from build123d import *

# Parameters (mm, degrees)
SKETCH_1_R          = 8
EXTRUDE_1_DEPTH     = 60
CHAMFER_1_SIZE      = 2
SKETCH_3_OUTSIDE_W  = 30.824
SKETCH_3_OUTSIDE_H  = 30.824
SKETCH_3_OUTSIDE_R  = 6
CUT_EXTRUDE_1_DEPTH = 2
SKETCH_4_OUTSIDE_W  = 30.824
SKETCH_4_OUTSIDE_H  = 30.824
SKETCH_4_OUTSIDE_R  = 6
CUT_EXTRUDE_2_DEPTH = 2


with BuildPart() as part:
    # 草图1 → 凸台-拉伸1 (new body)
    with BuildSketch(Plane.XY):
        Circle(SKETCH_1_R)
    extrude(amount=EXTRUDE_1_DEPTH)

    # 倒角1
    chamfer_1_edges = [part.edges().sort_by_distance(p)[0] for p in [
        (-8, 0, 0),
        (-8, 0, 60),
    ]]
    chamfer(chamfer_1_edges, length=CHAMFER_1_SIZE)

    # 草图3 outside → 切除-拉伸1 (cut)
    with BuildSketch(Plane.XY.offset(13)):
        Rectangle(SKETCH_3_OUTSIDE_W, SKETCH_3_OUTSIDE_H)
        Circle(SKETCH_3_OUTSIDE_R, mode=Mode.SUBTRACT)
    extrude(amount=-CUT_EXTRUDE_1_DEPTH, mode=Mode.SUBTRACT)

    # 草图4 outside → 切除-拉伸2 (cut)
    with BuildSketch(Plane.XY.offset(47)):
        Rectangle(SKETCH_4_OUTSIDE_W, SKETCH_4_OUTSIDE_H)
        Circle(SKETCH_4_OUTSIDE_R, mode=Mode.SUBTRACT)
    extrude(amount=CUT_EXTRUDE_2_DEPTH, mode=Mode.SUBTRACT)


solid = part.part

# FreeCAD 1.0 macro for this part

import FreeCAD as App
import Part
import Sketcher
from FreeCAD import Vector
Q = App.Units.Quantity


def edges_at(feature, points):
    """Names of the edges that pass closest to the given points."""
    edges = feature.Shape.Edges
    near = lambda p: min(range(len(edges)), key=lambda i: edges[i].distToShape(Part.Vertex(*p))[0])
    return sorted({f"Edge{near(p) + 1}" for p in points})


def add_polygon(sketch, points):
    """Adds a closed chain of lines whose ends are joined by coincident constraints."""
    first, n = sketch.GeometryCount, len(points)
    for a, b in zip(points, points[1:] + points[:1]):
        sketch.addGeometry(Part.LineSegment(App.Vector(*a, 0), App.Vector(*b, 0)), False)
    for i in range(n):
        sketch.addConstraint(Sketcher.Constraint("Coincident", first + i, 2, first + (i + 1) % n, 1))

doc = App.newDocument("Part")
body = doc.addObject("PartDesign::Body", "Body")

# Sketch on XY plane
sketch1 = doc.addObject("Sketcher::SketchObject", "Sketch")
body.addObject(sketch1)
sketch1.AttachmentSupport = (doc.XY_Plane, [""])
sketch1.MapMode = "FlatFace"
sketch1.addGeometry(Part.Circle(Vector(0, 0, 0), Vector(0, 0, 1), 8), False)
sketch1.addConstraint([
    Sketcher.Constraint("Coincident", 0, 3, -1, 1),
    Sketcher.Constraint("Diameter", 0, Q("16 mm")),
])
pad1 = doc.addObject("PartDesign::Pad", "Pad")
body.addObject(pad1)
pad1.Profile = sketch1
pad1.Length = 60
doc.recompute()

chamfer = doc.addObject("PartDesign::Chamfer", "Chamfer")
body.addObject(chamfer)
chamfer.Base = (pad1, edges_at(pad1, [(-8, 0, 0), (-8, 0, 60)]))
chamfer.Size = 2

# Sketch on XY plane
sketch2 = doc.addObject("Sketcher::SketchObject", "Sketch001")
body.addObject(sketch2)
sketch2.AttachmentSupport = (doc.XY_Plane, [""])
sketch2.MapMode = "FlatFace"
sketch2.AttachmentOffset = App.Placement(Vector(0, 0, 13), App.Rotation())
add_polygon(sketch2, [(-15, 15), (-15, -15), (15, -15), (15, 15)])  # lines 0-3
sketch2.addGeometry(Part.Circle(Vector(0, 0, 0), Vector(0, 0, 1), 6), False)  # 4
sketch2.addConstraint([
    Sketcher.Constraint("Vertical", 0),
    Sketcher.Constraint("Horizontal", 1),
    Sketcher.Constraint("Vertical", 2),
    Sketcher.Constraint("Horizontal", 3),
    Sketcher.Constraint("Coincident", 4, 3, -1, 1),
    Sketcher.Constraint("Symmetric", 0, 2, 2, 2, -1, 1),
    Sketcher.Constraint("Equal", 3, 0),
    Sketcher.Constraint("Diameter", 4, Q("12 mm")),
    Sketcher.Constraint("DistanceX", 1, 1, 1, 2, Q("30.824 mm")),
])
pocket1 = doc.addObject("PartDesign::Pocket", "Pocket")
body.addObject(pocket1)
pocket1.Profile = sketch2
pocket1.Length = 2

# Sketch on XY plane
sketch3 = doc.addObject("Sketcher::SketchObject", "Sketch002")
body.addObject(sketch3)
sketch3.AttachmentSupport = (doc.XY_Plane, [""])
sketch3.MapMode = "FlatFace"
sketch3.AttachmentOffset = App.Placement(Vector(0, 0, 47), App.Rotation())
add_polygon(sketch3, [(-15, 15), (-15, -15), (15, -15), (15, 15)])  # lines 0-3
sketch3.addGeometry(Part.Circle(Vector(0, 0, 0), Vector(0, 0, 1), 6), False)  # 4
sketch3.addConstraint([
    Sketcher.Constraint("Vertical", 0),
    Sketcher.Constraint("Horizontal", 1),
    Sketcher.Constraint("Vertical", 2),
    Sketcher.Constraint("Horizontal", 3),
    Sketcher.Constraint("Coincident", 4, 3, -1, 1),
    Sketcher.Constraint("Symmetric", 0, 2, 2, 2, -1, 1),
    Sketcher.Constraint("Equal", 3, 0),
    Sketcher.Constraint("Diameter", 4, Q("12 mm")),
    Sketcher.Constraint("DistanceX", 1, 1, 1, 2, Q("30.824 mm")),
])
pocket2 = doc.addObject("PartDesign::Pocket", "Pocket001")
body.addObject(pocket2)
pocket2.Profile = sketch3
pocket2.Length = 2
pocket2.Reversed = True

doc.recompute()
